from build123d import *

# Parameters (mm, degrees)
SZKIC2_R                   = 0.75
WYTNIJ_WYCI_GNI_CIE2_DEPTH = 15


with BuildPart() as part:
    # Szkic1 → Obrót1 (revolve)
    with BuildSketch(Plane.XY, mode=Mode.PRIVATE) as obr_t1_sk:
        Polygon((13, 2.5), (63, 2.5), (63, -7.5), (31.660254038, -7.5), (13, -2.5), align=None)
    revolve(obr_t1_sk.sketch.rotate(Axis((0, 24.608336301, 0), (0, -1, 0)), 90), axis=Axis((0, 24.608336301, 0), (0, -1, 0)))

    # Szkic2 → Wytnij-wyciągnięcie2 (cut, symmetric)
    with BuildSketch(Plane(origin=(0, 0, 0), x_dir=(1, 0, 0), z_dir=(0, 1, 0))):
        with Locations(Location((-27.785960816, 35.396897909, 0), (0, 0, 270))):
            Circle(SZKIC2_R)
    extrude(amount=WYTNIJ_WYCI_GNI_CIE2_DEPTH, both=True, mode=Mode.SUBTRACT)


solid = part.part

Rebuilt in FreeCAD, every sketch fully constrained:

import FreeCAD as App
import Part
import Sketcher
Q = App.Units.Quantity

doc = App.newDocument("Part")
body = doc.addObject("PartDesign::Body", "Body")

# Sketch on XY plane
sketch1 = body.newObject("Sketcher::SketchObject", "Sketch")
sketch1.AttachmentSupport = (doc.getObject("XY_Plane"), [""])
sketch1.MapMode = "FlatFace"
sketch1.addGeometry(Part.LineSegment(App.Vector(63, 2, 0), App.Vector(13, 2, 0)), False)
sketch1.addGeometry(Part.LineSegment(App.Vector(13, 2, 0), App.Vector(13, -2, 0)), False)
sketch1.addGeometry(Part.LineSegment(App.Vector(13, -2, 0), App.Vector(32, -8, 0)), False)
sketch1.addGeometry(Part.LineSegment(App.Vector(32, -8, 0), App.Vector(63, -8, 0)), False)
sketch1.addGeometry(Part.LineSegment(App.Vector(63, -8, 0), App.Vector(63, 2, 0)), False)
sketch1.addConstraint(Sketcher.Constraint("Coincident", 0, 2, 1, 1))
sketch1.addConstraint(Sketcher.Constraint("Coincident", 1, 2, 2, 1))
sketch1.addConstraint(Sketcher.Constraint("Coincident", 2, 2, 3, 1))
sketch1.addConstraint(Sketcher.Constraint("Coincident", 3, 2, 4, 1))
sketch1.addConstraint(Sketcher.Constraint("Coincident", 4, 2, 0, 1))
sketch1.addConstraint(Sketcher.Constraint("Horizontal", 0))
sketch1.addConstraint(Sketcher.Constraint("Vertical", 1))
sketch1.addConstraint(Sketcher.Constraint("Horizontal", 3))
sketch1.addConstraint(Sketcher.Constraint("Vertical", 4))
sketch1.addConstraint(Sketcher.Constraint("DistanceX", 0, 2, 0, 1, 50.0))
sketch1.addConstraint(Sketcher.Constraint("DistanceY", 1, 2, 1, 1, 5.0))
sketch1.addConstraint(Sketcher.Constraint("DistanceY", 4, 1, 4, 2, 10.0))
sketch1.addConstraint(Sketcher.Constraint("Angle", 2, Q("-15 deg")))
sketch1.addConstraint(Sketcher.Constraint("DistanceX", -1, 1, 0, 2, 13.0))
sketch1.addConstraint(Sketcher.Constraint("DistanceY", -1, 1, 0, 2, 2.5))
revolution = body.newObject("PartDesign::Revolution", "Revolution")
revolution.Profile = sketch1
revolution.ReferenceAxis = (sketch1, ["V_Axis"])
revolution.Angle = 360

# Sketch on XZ plane
sketch2 = body.newObject("Sketcher::SketchObject", "Sketch001")
sketch2.AttachmentSupport = (doc.getObject("XZ_Plane"), [""])
sketch2.MapMode = "FlatFace"
sketch2.addGeometry(Part.Circle(App.Vector(-27.8, -35.4, 0), App.Vector(0, 0, 1), 0.8), False)
sketch2.addConstraint(Sketcher.Constraint("Diameter", 0, 1.5))
sketch2.addConstraint(Sketcher.Constraint("DistanceX", 0, 3, -1, 1, 27.785961))
sketch2.addConstraint(Sketcher.Constraint("DistanceY", 0, 3, -1, 1, 35.396898))
pocket1 = body.newObject("PartDesign::Pocket", "Pocket")
pocket1.Profile = sketch2
pocket1.Length = 30
pocket1.Midplane = True

doc.recompute()
